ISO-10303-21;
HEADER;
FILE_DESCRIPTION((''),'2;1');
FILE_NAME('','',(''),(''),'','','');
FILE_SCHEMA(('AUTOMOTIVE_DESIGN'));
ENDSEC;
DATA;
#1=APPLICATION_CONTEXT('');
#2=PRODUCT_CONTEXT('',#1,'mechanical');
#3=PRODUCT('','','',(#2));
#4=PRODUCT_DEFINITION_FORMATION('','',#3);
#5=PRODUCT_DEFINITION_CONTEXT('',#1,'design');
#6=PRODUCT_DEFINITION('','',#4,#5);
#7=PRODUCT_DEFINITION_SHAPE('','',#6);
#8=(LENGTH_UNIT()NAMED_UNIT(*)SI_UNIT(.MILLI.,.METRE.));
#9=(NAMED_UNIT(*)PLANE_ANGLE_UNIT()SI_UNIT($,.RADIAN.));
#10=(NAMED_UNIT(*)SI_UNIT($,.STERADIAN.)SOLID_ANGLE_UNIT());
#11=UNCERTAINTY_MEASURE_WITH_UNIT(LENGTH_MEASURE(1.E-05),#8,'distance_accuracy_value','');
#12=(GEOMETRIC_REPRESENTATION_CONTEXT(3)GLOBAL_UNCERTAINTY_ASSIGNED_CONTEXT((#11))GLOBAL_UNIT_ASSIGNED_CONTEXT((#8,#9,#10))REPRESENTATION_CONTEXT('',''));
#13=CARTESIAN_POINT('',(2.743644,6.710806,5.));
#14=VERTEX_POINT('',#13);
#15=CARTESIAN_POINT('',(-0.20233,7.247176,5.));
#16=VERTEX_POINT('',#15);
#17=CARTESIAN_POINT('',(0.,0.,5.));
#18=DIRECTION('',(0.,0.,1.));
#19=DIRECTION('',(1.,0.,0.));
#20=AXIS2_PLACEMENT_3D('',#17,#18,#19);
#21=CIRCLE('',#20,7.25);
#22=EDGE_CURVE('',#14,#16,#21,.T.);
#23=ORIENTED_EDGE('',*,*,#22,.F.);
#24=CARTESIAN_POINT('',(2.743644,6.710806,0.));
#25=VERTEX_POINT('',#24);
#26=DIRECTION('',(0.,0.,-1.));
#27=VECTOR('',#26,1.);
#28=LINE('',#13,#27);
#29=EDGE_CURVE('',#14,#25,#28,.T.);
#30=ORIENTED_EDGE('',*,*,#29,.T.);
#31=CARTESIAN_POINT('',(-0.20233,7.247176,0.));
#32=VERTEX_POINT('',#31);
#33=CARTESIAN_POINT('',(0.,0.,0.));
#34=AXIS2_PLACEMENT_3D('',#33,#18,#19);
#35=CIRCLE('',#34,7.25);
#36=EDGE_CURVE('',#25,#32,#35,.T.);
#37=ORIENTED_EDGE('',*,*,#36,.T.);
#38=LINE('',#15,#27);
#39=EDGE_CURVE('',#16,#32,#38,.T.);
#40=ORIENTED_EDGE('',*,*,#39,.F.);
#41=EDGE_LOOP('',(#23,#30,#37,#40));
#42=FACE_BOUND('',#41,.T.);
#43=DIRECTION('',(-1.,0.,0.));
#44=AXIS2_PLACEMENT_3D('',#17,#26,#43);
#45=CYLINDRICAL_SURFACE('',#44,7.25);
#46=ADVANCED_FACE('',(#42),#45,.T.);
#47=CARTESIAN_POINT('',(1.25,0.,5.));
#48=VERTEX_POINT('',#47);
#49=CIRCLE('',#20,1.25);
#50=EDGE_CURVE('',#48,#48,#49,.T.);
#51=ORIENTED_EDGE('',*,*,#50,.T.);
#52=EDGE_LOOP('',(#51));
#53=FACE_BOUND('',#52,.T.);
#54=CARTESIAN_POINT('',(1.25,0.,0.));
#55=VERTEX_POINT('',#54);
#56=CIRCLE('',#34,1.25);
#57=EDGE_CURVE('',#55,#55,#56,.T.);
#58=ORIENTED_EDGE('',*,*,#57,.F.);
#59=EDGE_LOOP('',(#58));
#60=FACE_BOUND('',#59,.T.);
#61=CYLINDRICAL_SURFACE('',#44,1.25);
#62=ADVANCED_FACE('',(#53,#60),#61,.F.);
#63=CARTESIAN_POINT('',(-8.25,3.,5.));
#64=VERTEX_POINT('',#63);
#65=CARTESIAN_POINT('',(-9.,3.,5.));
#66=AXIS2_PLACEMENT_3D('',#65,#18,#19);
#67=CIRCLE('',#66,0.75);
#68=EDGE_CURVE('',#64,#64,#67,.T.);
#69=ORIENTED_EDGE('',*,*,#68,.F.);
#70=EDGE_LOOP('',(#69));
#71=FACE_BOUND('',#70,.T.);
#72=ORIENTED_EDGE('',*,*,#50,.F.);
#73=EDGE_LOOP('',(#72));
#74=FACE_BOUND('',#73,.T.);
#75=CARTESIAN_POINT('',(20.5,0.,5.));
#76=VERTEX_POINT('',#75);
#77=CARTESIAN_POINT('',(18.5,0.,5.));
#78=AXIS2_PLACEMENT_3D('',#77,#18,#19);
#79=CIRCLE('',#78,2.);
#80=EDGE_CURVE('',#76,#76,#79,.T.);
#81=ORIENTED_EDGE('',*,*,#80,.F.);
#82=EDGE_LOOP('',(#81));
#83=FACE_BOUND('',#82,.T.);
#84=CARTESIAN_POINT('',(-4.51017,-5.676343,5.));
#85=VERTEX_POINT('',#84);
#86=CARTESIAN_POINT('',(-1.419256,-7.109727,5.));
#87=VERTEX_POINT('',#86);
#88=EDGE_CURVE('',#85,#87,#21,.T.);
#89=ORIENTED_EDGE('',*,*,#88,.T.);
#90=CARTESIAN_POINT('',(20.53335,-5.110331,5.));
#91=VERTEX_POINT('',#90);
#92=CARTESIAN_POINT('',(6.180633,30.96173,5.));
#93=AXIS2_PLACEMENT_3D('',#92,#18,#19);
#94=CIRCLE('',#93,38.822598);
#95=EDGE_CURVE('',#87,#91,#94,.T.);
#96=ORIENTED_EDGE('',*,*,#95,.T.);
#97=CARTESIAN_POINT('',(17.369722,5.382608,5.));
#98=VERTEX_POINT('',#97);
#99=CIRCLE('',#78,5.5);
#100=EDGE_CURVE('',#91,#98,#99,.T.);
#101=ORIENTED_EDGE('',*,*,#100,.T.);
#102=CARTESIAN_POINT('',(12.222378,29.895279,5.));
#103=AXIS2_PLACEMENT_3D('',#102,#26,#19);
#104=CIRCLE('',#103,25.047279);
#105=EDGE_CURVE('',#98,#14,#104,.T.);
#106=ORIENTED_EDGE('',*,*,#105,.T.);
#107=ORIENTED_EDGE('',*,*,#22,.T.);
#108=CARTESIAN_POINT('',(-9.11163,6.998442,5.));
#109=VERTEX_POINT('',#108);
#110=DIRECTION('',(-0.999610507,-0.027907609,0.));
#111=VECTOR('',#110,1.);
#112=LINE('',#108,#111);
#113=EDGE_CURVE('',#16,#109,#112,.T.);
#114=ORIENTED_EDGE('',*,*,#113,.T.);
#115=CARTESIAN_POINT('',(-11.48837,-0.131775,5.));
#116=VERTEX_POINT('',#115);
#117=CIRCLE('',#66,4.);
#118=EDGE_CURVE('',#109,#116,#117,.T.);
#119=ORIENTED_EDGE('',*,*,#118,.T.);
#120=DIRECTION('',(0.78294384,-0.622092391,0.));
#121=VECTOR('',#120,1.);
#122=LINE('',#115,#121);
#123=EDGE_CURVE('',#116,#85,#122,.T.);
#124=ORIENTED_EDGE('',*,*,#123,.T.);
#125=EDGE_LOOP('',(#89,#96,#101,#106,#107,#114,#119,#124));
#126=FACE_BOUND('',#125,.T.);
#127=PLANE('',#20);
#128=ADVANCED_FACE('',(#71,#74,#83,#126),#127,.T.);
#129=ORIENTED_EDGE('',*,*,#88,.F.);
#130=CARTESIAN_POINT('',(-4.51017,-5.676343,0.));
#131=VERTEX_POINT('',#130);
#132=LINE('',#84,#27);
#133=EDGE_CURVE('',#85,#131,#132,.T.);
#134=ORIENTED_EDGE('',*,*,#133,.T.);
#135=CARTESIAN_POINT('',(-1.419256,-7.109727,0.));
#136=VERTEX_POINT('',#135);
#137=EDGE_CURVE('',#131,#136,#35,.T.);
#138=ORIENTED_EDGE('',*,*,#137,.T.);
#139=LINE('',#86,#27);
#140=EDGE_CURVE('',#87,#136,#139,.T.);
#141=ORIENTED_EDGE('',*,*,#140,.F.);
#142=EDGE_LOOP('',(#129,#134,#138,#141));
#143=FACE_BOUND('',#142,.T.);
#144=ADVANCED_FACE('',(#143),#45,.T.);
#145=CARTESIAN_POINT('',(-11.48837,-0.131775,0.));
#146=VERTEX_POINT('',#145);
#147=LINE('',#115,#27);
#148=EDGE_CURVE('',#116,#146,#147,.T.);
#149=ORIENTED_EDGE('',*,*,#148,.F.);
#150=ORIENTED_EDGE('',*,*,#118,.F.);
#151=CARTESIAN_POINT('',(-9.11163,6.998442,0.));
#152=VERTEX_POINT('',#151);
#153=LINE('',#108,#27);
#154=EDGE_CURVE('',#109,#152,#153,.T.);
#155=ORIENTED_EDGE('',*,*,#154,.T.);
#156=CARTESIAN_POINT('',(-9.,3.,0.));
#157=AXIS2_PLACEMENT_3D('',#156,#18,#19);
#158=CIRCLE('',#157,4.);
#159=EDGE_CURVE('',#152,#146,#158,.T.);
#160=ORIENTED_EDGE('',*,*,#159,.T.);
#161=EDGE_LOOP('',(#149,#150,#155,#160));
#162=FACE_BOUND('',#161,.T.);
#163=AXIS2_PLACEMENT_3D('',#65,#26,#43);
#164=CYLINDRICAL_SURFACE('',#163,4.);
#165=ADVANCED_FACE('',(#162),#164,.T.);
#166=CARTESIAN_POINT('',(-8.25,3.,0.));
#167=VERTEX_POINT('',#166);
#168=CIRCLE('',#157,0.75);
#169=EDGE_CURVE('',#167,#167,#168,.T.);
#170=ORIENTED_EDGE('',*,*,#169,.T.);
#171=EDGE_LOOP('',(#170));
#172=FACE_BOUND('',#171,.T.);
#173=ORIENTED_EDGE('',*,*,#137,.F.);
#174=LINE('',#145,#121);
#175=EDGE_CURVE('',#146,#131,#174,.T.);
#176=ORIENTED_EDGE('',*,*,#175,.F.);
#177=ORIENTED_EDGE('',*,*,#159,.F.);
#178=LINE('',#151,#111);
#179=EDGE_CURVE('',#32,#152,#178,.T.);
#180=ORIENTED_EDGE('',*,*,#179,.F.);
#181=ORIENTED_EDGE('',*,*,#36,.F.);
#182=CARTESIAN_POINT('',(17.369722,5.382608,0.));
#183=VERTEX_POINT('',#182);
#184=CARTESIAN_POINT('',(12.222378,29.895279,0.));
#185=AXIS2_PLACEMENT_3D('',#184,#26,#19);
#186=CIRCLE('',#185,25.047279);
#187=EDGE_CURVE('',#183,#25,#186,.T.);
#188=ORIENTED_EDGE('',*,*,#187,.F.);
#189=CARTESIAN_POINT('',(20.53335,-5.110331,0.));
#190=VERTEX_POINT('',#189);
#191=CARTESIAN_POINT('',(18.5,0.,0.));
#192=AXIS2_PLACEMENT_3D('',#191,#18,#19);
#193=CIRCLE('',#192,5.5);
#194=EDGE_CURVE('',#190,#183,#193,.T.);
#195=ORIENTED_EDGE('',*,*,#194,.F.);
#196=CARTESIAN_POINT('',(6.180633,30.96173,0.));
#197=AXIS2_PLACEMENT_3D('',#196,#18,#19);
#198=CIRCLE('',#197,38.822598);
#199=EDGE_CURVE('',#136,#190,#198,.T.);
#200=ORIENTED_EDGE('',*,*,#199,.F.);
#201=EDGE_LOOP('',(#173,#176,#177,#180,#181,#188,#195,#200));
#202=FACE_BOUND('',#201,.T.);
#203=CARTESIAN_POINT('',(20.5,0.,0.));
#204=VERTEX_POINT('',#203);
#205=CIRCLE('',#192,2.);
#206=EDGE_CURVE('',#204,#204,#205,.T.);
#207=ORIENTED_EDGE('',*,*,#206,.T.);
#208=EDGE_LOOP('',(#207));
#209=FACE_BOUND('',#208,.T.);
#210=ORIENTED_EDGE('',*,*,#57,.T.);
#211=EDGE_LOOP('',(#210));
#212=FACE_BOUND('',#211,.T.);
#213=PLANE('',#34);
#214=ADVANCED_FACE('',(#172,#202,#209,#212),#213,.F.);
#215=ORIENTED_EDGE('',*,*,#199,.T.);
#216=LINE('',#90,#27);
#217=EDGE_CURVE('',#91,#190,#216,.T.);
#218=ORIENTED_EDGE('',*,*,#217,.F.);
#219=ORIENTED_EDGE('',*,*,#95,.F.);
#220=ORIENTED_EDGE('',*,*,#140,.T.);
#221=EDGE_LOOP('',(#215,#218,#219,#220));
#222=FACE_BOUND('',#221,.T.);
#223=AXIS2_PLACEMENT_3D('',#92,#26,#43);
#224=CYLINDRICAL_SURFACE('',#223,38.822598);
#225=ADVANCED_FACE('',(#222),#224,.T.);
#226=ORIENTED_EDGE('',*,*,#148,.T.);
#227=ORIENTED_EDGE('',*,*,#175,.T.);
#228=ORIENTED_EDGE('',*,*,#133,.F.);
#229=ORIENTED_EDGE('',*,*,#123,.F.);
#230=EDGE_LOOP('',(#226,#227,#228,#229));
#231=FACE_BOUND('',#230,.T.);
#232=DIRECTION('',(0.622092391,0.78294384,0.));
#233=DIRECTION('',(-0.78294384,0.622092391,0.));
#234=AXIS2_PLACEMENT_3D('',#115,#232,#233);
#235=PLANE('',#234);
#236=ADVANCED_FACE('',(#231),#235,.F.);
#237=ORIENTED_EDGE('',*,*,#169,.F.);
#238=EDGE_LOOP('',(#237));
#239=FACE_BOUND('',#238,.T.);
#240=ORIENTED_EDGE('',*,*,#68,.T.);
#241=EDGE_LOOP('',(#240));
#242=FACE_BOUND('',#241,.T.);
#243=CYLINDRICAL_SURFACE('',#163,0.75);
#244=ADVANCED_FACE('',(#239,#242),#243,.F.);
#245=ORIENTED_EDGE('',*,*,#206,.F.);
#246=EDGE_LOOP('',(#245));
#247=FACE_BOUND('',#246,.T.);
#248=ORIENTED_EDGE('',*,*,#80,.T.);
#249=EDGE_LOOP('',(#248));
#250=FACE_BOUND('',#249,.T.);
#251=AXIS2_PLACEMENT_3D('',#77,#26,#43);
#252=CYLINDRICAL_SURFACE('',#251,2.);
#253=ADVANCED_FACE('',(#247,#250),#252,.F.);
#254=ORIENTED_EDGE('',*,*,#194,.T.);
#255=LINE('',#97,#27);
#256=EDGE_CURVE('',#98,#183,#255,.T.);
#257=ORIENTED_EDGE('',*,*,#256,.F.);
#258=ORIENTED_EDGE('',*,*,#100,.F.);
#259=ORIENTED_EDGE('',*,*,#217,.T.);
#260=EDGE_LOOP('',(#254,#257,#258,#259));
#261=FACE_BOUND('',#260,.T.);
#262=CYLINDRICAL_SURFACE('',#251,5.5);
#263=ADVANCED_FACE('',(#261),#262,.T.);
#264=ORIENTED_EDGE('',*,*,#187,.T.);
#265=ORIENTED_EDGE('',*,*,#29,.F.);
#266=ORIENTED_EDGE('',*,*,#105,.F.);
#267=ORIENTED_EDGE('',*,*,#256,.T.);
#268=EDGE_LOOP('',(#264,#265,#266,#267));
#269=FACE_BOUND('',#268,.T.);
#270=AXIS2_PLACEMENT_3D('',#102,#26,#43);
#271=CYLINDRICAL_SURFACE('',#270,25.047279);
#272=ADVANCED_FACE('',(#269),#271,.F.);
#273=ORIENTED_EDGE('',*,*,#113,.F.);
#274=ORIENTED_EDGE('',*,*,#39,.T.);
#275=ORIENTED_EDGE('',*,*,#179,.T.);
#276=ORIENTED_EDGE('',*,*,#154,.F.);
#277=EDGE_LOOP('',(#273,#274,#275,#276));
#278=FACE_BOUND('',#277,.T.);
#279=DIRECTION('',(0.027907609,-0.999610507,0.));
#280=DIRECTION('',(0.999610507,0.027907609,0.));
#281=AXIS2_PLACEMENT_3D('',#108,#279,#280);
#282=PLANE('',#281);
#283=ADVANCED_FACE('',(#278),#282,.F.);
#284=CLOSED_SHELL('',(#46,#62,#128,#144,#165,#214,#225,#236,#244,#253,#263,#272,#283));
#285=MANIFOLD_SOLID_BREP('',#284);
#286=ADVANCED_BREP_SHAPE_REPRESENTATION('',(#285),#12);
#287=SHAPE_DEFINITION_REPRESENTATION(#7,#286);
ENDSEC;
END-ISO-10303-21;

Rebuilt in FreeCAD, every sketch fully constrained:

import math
import FreeCAD as App
import Part
import Sketcher
from FreeCAD import Vector

doc = App.newDocument("Part")
body = doc.addObject("PartDesign::Body", "Body")

sketch1 = body.newObject("Sketcher::SketchObject", "Sketch")
sketch1.AttachmentSupport = (doc.getObject("XY_Plane"), [""])
sketch1.MapMode = "FlatFace"
sketch1.addGeometry([
    Part.LineSegment(Vector(-11.5, -0.1, 0), Vector(-4.5, -5.7, 0)),
    Part.ArcOfCircle(Part.Circle(Vector(0, 0, 0), Vector(0, 0, 1), 7.3), math.radians(-128), math.radians(-101)),
    Part.ArcOfCircle(Part.Circle(Vector(6.2, 31, 0), Vector(0, 0, 1), 38.8), math.radians(-101), math.radians(-68)),
    Part.ArcOfCircle(Part.Circle(Vector(18.5, 0, 0), Vector(0, 0, 1), 5.5), math.radians(-68), math.radians(102)),
    Part.ArcOfCircle(Part.Circle(Vector(12.2, 29.9, 0), Vector(0, 0, 1), 25), math.radians(-112), math.radians(-78)),
    Part.ArcOfCircle(Part.Circle(Vector(0, 0, 0), Vector(0, 0, 1), 7.3), math.radians(68), math.radians(92)),
    Part.LineSegment(Vector(-0.2, 7.2, 0), Vector(-9.1, 7, 0)),
    Part.ArcOfCircle(Part.Circle(Vector(-9, 3, 0), Vector(0, 0, 1), 4), math.radians(92), math.radians(232)),
    Part.Circle(Vector(0, 0, 0), Vector(0, 0, 1), 1.2),
    Part.Circle(Vector(18.5, 0, 0), Vector(0, 0, 1), 2),
    Part.Circle(Vector(-9, 3, 0), Vector(0, 0, 1), 0.8),
], False)
sketch1.addConstraint([
    Sketcher.Constraint("Tangent", 0, 2, 1, 1),
    Sketcher.Constraint("Tangent", 1, 2, 2, 1),
    Sketcher.Constraint("Tangent", 2, 2, 3, 1),
    Sketcher.Constraint("Tangent", 3, 2, 4, 2),
    Sketcher.Constraint("Tangent", 4, 1, 5, 1),
    Sketcher.Constraint("Tangent", 5, 2, 6, 1),
    Sketcher.Constraint("Tangent", 6, 2, 7, 1),
    Sketcher.Constraint("Tangent", 7, 2, 0, 1),
    Sketcher.Constraint("Coincident", 1, 3, -1, 1),
    Sketcher.Constraint("Coincident", 5, 3, -1, 1),
    Sketcher.Constraint("Coincident", 8, 3, -1, 1),
    Sketcher.Constraint("Coincident", 9, 3, 3, 3),
    Sketcher.Constraint("Coincident", 10, 3, 7, 3),
    Sketcher.Constraint("Equal", 1, 5),
    Sketcher.Constraint("PointOnObject", 3, 3, -1),
    Sketcher.Constraint("Diameter", 9, 4.0),
    Sketcher.Constraint("Radius", 7, 4.0),
    Sketcher.Constraint("Diameter", 8, 2.5),
    Sketcher.Constraint("Diameter", 10, 1.5),
    Sketcher.Constraint("Radius", 3, 5.5),
    Sketcher.Constraint("Radius", 1, 7.25),
    Sketcher.Constraint("DistanceX", 7, 3, -1, 1, 9.0),
    Sketcher.Constraint("DistanceY", -1, 1, 7, 3, 3.0),
    Sketcher.Constraint("DistanceX", -1, 1, 3, 3, 18.5),
    Sketcher.Constraint("Radius", 4, 25.047279),
    Sketcher.Constraint("Radius", 2, 38.822598),
])
pad1 = body.newObject("PartDesign::Pad", "Pad")
pad1.Profile = sketch1
pad1.Length = 5

doc.recompute()
